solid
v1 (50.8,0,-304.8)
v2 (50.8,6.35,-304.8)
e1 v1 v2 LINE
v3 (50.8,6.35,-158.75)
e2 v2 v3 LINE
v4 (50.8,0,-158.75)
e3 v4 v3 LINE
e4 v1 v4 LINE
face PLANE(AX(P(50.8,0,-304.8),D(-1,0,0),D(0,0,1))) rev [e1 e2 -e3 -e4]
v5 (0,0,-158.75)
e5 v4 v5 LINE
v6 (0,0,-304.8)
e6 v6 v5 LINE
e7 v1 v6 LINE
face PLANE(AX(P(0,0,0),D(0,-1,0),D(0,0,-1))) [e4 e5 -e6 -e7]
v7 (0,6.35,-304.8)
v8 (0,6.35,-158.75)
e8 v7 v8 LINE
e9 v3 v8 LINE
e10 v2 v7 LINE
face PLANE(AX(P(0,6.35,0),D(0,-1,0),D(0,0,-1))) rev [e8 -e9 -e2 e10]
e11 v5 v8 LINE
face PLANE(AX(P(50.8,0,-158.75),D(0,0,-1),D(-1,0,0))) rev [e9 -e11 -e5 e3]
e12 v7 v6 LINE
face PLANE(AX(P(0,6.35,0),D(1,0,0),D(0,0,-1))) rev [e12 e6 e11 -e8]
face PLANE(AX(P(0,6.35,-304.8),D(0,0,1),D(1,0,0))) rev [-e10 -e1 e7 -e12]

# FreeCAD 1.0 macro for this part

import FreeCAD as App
import Part
import Sketcher
Q = App.Units.Quantity

doc = App.newDocument("Part")
body = doc.addObject("PartDesign::Body", "Body")

# Sketch on XZ plane
sketch1 = body.newObject("Sketcher::SketchObject", "Sketch")
sketch1.AttachmentSupport = (doc.getObject("XZ_Plane"), [""])
sketch1.MapMode = "FlatFace"
sketch1.addGeometry([
    Part.LineSegment(App.Vector(0, -304.8, 0), App.Vector(0, 0, 0)),
    Part.LineSegment(App.Vector(0, 0, 0), App.Vector(304.8, 0, 0)),
    Part.LineSegment(App.Vector(304.8, 0, 0), App.Vector(304.8, -304.8, 0)),
    Part.LineSegment(App.Vector(304.8, -304.8, 0), App.Vector(0, -304.8, 0)),
], False)
sketch1.addConstraint([
    Sketcher.Constraint("Coincident", 0, 2, 1, 1),
    Sketcher.Constraint("Coincident", 1, 2, 2, 1),
    Sketcher.Constraint("Coincident", 2, 2, 3, 1),
    Sketcher.Constraint("Coincident", 3, 2, 0, 1),
    Sketcher.Constraint("Vertical", 0),
    Sketcher.Constraint("Horizontal", 1),
    Sketcher.Constraint("Vertical", 2),
    Sketcher.Constraint("Horizontal", 3),
    Sketcher.Constraint("Coincident", 0, 2, -1, 1),
    Sketcher.Constraint("Equal", 3, 0),
    Sketcher.Constraint("DistanceX", 1, 1, 1, 2, Q("12 in")),
])
pad1 = body.newObject("PartDesign::Pad", "Pad")
pad1.Profile = sketch1
pad1.Length = Q("0.25 in")
pad1.Reversed = True

# Sketch on XZ plane
sketch2 = body.newObject("Sketcher::SketchObject", "Sketch001")
sketch2.AttachmentSupport = (doc.getObject("XZ_Plane"), [""])
sketch2.MapMode = "FlatFace"
sketch2.AttachmentOffset = App.Placement(App.Vector(0, 0, -0.25 * 25.4), App.Rotation())
sketch2.addGeometry([
    Part.LineSegment(App.Vector(50.8, -304.8, 0), App.Vector(50.8, -158.75, 0)),  # 0
    Part.LineSegment(App.Vector(50.8, -158.75, 0), App.Vector(0, -158.75, 0)),  # 1
    Part.LineSegment(App.Vector(0, -158.75, 0), App.Vector(0, 0, 0)),  # 2
    Part.LineSegment(App.Vector(0, 0, 0), App.Vector(304.8, 0, 0)),  # 3
    Part.LineSegment(App.Vector(304.8, 0, 0), App.Vector(304.8, -304.8, 0)),  # 4
    Part.LineSegment(App.Vector(304.8, -304.8, 0), App.Vector(50.8, -304.8, 0)),  # 5
], False)
sketch2.addConstraint([
    Sketcher.Constraint("Coincident", 0, 2, 1, 1),
    Sketcher.Constraint("Coincident", 1, 2, 2, 1),
    Sketcher.Constraint("Coincident", 2, 2, 3, 1),
    Sketcher.Constraint("Coincident", 3, 2, 4, 1),
    Sketcher.Constraint("Coincident", 4, 2, 5, 1),
    Sketcher.Constraint("Coincident", 5, 2, 0, 1),
    Sketcher.Constraint("Vertical", 0),
    Sketcher.Constraint("Horizontal", 1),
    Sketcher.Constraint("Vertical", 2),
    Sketcher.Constraint("Horizontal", 3),
    Sketcher.Constraint("Vertical", 4),
    Sketcher.Constraint("Horizontal", 5),
    Sketcher.Constraint("Coincident", 2, 2, -1, 1),
    Sketcher.Constraint("Equal", 3, 4),
    Sketcher.Constraint("DistanceX", 1, 2, 1, 1, Q("2 in")),
    Sketcher.Constraint("DistanceX", 3, 1, 3, 2, Q("12 in")),
    Sketcher.Constraint("DistanceY", 0, 1, 0, 2, Q("5.75 in")),
])
pocket1 = body.newObject("PartDesign::Pocket", "Pocket")
pocket1.Profile = sketch2
pocket1.Length = Q("0.25 in")
pocket1.Reversed = True

doc.recompute()
